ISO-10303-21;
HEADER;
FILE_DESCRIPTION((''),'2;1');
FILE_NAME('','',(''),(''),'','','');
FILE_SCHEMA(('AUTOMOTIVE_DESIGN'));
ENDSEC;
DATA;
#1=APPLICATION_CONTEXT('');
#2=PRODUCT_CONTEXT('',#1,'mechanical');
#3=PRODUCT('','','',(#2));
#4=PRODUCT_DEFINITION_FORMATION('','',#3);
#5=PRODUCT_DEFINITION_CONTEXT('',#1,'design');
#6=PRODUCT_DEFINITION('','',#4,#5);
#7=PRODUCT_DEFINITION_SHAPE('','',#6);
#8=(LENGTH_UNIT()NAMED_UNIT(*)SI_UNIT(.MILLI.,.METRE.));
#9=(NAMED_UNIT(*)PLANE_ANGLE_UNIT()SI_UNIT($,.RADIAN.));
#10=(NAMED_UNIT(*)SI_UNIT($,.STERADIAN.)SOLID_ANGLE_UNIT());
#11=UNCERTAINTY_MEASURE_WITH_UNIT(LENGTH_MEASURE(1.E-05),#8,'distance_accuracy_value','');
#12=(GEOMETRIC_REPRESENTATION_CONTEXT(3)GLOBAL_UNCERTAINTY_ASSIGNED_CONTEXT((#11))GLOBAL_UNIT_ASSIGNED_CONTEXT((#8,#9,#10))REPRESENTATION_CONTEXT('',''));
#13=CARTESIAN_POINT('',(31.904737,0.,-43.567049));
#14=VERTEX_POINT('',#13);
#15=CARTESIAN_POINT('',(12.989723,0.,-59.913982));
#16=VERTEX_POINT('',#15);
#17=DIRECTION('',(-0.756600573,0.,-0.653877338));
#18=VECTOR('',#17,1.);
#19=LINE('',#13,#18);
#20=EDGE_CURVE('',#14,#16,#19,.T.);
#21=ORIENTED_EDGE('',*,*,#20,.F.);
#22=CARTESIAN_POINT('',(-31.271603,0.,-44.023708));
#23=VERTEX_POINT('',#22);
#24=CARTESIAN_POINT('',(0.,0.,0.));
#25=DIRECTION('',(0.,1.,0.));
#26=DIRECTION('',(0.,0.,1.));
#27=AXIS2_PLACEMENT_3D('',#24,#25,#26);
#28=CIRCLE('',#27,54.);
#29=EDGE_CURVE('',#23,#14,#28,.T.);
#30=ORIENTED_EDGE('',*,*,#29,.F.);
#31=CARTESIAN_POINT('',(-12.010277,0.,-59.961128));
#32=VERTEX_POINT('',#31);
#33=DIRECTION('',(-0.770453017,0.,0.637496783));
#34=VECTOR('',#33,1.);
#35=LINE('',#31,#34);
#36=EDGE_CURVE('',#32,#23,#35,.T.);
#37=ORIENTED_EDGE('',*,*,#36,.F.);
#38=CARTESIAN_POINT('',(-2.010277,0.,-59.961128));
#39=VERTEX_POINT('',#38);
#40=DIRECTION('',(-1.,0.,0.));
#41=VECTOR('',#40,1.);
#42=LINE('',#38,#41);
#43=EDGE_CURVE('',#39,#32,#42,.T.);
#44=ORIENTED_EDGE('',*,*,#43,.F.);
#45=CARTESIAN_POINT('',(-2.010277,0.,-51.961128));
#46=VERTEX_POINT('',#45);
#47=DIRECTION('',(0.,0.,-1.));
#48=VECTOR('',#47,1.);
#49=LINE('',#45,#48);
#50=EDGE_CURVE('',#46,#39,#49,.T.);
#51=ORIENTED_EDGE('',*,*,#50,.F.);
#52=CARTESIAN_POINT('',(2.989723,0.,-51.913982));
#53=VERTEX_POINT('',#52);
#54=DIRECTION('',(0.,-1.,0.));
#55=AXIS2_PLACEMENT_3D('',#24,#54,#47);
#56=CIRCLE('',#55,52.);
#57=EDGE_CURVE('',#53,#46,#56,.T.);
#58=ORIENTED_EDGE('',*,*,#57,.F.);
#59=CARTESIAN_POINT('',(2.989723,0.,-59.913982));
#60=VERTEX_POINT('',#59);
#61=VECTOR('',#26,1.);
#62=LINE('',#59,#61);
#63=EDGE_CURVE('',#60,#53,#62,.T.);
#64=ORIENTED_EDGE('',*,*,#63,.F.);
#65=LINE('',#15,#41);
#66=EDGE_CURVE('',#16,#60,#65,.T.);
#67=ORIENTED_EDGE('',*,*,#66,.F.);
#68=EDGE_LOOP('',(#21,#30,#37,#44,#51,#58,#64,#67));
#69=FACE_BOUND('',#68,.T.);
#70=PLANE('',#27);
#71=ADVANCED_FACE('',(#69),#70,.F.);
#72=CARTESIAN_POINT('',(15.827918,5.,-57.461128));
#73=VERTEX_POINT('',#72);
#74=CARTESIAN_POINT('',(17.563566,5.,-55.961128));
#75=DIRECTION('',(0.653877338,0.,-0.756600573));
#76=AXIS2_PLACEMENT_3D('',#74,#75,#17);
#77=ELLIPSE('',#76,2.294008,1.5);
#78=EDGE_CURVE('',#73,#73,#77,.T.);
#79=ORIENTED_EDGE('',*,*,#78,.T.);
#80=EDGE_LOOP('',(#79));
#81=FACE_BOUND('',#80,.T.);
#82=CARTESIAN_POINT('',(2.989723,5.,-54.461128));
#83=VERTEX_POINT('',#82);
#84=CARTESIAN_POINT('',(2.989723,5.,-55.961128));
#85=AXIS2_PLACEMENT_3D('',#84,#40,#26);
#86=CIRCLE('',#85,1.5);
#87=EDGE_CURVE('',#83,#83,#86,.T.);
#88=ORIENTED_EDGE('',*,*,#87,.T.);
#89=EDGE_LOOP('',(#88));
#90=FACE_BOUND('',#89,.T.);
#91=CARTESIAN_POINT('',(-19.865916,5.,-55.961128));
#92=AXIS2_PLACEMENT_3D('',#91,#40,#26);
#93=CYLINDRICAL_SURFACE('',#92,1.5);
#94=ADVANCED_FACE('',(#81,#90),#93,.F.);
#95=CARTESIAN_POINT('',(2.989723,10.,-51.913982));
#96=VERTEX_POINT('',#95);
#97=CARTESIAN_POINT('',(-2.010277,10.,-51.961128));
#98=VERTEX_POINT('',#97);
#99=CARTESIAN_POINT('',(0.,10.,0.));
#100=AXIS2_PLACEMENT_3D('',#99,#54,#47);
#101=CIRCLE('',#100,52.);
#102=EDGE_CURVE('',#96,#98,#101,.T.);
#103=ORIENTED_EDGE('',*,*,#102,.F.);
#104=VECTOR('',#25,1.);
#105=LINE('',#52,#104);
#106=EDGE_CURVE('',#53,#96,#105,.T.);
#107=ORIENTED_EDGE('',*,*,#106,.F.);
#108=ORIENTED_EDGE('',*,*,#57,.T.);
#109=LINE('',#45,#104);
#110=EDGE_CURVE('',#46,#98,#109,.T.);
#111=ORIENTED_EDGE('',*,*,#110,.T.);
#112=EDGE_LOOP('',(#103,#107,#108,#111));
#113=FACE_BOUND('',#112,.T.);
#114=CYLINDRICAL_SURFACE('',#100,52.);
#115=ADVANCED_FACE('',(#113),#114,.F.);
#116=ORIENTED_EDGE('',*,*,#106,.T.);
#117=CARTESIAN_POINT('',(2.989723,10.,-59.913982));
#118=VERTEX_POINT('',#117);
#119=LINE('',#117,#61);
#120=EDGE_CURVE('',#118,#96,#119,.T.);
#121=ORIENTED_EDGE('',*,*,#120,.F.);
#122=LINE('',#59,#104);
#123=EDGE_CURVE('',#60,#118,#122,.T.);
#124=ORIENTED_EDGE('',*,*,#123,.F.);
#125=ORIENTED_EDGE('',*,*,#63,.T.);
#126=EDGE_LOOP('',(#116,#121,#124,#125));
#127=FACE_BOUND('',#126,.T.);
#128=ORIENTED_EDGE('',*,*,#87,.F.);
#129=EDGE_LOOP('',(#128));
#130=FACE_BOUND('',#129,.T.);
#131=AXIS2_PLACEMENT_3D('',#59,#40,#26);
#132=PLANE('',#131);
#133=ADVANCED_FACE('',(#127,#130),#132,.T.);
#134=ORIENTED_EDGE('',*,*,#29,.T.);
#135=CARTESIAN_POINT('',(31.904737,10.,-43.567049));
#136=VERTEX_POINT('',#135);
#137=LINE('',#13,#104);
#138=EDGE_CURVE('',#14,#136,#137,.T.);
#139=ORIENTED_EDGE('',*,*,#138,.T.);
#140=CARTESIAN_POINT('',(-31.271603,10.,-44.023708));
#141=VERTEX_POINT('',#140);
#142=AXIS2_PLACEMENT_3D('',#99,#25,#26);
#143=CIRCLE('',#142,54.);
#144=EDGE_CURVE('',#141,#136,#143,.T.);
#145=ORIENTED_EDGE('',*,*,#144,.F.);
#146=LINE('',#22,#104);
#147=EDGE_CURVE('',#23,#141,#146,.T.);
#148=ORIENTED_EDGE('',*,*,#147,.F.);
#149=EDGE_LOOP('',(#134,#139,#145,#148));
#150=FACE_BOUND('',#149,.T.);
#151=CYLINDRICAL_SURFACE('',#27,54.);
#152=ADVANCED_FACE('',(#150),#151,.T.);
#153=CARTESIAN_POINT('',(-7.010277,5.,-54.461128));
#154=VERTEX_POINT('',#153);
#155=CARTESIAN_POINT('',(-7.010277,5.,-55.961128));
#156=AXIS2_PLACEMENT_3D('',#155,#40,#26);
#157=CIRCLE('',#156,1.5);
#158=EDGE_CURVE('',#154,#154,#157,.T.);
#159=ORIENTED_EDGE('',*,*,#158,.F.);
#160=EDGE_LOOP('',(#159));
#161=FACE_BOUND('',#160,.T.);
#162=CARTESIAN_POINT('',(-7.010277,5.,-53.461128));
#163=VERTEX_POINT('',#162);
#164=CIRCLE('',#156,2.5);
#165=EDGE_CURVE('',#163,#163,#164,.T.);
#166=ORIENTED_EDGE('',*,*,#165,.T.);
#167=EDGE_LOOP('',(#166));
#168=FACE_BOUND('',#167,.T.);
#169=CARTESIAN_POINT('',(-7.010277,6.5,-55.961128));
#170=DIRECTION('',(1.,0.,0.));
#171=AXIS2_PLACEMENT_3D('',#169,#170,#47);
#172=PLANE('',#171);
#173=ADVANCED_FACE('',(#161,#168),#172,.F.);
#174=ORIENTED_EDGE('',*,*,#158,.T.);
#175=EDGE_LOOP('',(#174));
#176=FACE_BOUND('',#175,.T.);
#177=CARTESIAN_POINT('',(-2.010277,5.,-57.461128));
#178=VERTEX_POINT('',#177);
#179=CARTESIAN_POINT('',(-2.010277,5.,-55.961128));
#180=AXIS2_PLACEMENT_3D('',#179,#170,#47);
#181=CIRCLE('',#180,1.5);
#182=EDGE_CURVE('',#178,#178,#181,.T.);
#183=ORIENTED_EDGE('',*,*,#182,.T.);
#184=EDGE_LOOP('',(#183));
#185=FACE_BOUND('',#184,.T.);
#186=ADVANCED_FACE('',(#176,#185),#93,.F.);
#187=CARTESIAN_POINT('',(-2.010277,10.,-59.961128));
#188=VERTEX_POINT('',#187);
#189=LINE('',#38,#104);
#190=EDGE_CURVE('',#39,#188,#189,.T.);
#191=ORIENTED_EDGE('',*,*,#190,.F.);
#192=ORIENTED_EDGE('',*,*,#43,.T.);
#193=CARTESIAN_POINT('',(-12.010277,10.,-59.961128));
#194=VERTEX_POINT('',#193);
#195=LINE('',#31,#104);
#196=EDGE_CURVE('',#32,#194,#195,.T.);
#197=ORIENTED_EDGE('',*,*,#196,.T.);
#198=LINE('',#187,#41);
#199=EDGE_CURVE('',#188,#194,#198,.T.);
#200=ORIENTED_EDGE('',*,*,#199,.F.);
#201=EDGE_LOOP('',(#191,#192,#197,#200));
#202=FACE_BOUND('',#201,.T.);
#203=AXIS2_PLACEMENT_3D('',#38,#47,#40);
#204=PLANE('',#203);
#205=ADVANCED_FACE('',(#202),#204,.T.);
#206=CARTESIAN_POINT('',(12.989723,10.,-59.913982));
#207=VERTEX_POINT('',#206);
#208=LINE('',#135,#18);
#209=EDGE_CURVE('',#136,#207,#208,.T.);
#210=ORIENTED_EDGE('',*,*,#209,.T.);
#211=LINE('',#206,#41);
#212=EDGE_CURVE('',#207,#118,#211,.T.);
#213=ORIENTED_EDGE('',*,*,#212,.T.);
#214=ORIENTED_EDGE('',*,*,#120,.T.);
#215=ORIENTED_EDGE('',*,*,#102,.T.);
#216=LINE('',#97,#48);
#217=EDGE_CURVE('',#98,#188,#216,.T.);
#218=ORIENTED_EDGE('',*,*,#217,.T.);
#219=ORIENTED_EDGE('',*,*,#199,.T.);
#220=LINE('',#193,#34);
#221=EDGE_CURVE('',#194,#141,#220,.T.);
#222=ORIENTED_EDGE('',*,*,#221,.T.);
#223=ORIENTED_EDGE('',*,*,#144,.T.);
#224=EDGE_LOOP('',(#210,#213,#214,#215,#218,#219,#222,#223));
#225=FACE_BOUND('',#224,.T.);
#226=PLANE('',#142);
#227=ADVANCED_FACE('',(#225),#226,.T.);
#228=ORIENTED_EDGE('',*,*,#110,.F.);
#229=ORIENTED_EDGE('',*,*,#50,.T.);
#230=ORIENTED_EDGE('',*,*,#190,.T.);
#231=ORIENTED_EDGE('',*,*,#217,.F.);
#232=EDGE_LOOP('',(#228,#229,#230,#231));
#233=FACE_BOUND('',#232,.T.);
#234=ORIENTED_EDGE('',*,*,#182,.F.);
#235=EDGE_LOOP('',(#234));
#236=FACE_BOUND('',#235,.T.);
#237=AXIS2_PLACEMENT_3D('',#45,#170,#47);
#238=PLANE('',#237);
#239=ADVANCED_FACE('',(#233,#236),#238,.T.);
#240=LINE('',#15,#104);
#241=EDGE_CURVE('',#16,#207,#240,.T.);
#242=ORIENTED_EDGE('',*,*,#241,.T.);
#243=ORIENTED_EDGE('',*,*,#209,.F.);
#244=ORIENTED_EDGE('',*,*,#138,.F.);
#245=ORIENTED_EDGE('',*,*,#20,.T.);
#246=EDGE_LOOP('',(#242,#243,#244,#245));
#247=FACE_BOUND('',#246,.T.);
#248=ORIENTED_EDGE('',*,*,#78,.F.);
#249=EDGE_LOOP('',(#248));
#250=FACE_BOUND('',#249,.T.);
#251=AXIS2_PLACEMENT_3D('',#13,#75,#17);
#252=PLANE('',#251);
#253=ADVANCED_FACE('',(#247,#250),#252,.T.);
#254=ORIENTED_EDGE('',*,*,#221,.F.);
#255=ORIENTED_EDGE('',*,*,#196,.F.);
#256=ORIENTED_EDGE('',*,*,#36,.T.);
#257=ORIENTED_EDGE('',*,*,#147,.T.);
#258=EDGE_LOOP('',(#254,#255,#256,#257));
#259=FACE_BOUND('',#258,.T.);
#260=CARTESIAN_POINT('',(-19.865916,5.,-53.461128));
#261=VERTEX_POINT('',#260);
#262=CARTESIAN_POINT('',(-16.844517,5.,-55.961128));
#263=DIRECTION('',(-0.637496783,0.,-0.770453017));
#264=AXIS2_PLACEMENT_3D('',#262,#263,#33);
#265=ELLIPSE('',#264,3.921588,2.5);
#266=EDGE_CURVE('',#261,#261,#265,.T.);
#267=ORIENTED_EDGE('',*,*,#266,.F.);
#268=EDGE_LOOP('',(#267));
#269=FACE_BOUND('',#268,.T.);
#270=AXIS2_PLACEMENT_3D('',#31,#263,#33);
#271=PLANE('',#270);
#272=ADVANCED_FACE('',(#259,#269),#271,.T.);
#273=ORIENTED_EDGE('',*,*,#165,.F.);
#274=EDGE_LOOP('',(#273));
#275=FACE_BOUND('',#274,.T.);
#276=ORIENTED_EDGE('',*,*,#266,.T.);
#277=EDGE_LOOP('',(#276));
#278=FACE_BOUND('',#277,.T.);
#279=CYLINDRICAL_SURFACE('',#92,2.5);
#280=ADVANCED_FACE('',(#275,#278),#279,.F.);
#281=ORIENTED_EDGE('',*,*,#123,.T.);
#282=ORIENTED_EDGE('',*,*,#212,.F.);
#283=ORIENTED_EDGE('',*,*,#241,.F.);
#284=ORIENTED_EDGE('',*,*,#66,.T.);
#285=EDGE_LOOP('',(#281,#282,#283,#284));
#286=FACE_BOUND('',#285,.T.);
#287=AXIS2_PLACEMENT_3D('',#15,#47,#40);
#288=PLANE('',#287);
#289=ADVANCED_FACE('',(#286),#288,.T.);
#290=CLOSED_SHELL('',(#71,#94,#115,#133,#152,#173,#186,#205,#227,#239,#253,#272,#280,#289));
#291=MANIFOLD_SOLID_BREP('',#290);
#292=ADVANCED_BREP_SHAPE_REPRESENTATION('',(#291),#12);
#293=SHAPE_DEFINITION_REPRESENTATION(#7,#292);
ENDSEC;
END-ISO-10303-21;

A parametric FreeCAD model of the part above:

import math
import FreeCAD as App
import Part
import Sketcher
from FreeCAD import Vector


def add_polygon(sketch, points):
    """Adds a closed chain of lines whose ends are joined by coincident constraints."""
    first, n = sketch.GeometryCount, len(points)
    for a, b in zip(points, points[1:] + points[:1]):
        sketch.addGeometry(Part.LineSegment(App.Vector(*a, 0), App.Vector(*b, 0)), False)
    for i in range(n):
        sketch.addConstraint(Sketcher.Constraint("Coincident", first + i, 2, first + (i + 1) % n, 1))

doc = App.newDocument("Part")
body = doc.addObject("PartDesign::Body", "Body")

# Sketch on XZ plane
sketch1 = doc.addObject("Sketcher::SketchObject", "Sketch")
body.addObject(sketch1)
sketch1.AttachmentSupport = (doc.XZ_Plane, [""])
sketch1.MapMode = "FlatFace"
sketch1.AttachmentOffset = App.Placement(Vector(0, 0, -10), App.Rotation())
sketch1.addGeometry(Part.LineSegment(Vector(2.989723, -59.913982, 0), Vector(2.989723, -51.913982, 0)), False)
sketch1.addGeometry(Part.ArcOfCircle(Part.Circle(Vector(0, 0, 0), Vector(0, 0, 1), 52), math.radians(-92.21556), math.radians(-86.70398)), False)
sketch1.addGeometry(Part.LineSegment(Vector(-2.010277, -51.961128, 0), Vector(-2.010277, -59.961128, 0)), False)
sketch1.addGeometry(Part.LineSegment(Vector(-2.010277, -59.961128, 0), Vector(-12.010277, -59.961128, 0)), False)
sketch1.addGeometry(Part.LineSegment(Vector(-12.010277, -59.961128, 0), Vector(-31.271603, -44.023708, 0)), False)
sketch1.addGeometry(Part.ArcOfCircle(Part.Circle(Vector(0, 0, 0), Vector(0, 0, 1), 54), math.radians(-53.784179), math.radians(234.61247)), False)
sketch1.addGeometry(Part.LineSegment(Vector(31.904737, -43.567049, 0), Vector(12.989723, -59.913982, 0)), False)
sketch1.addGeometry(Part.LineSegment(Vector(12.989723, -59.913982, 0), Vector(2.989723, -59.913982, 0)), False)
sketch1.addConstraint(Sketcher.Constraint("Coincident", 0, 2, 1, 2))
sketch1.addConstraint(Sketcher.Constraint("Coincident", 1, 1, 2, 1))
sketch1.addConstraint(Sketcher.Constraint("Coincident", 2, 2, 3, 1))
sketch1.addConstraint(Sketcher.Constraint("Coincident", 3, 2, 4, 1))
sketch1.addConstraint(Sketcher.Constraint("Coincident", 4, 2, 5, 2))
sketch1.addConstraint(Sketcher.Constraint("Coincident", 5, 1, 6, 1))
sketch1.addConstraint(Sketcher.Constraint("Coincident", 6, 2, 7, 1))
sketch1.addConstraint(Sketcher.Constraint("Coincident", 7, 2, 0, 1))
sketch1.addConstraint(Sketcher.Constraint("Vertical", 0))
sketch1.addConstraint(Sketcher.Constraint("Vertical", 2))
sketch1.addConstraint(Sketcher.Constraint("Horizontal", 3))
sketch1.addConstraint(Sketcher.Constraint("Horizontal", 7))
sketch1.addConstraint(Sketcher.Constraint("Coincident", 1, 3, -1, 1))
sketch1.addConstraint(Sketcher.Constraint("Coincident", 5, 3, -1, 1))
sketch1.addConstraint(Sketcher.Constraint("Equal", 3, 7))
sketch1.addConstraint(Sketcher.Constraint("Equal", 0, 2))
sketch1.addConstraint(Sketcher.Constraint("Equal", 4, 6))
sketch1.addConstraint(Sketcher.Constraint("Radius", 1, 52.0))
sketch1.addConstraint(Sketcher.Constraint("Radius", 5, 54.0))
sketch1.addConstraint(Sketcher.Constraint("DistanceX", 3, 2, 3, 1, 10.0))
sketch1.addConstraint(Sketcher.Constraint("DistanceY", 0, 1, 0, 2, 8.0))
sketch1.addConstraint(Sketcher.Constraint("Distance", 4, 25.0))
sketch1.addConstraint(Sketcher.Constraint("DistanceX", 1, 1, 0, 2, 5.0))
sketch1.addConstraint(Sketcher.Constraint("DistanceY", 4, 2, -1, 1, 44.023708))
pad1 = doc.addObject("PartDesign::Pad", "Pad")
body.addObject(pad1)
pad1.Profile = sketch1
pad1.Length = 10

# Sketch on XY plane
sketch2 = doc.addObject("Sketcher::SketchObject", "Sketch001")
body.addObject(sketch2)
sketch2.AttachmentSupport = (doc.XY_Plane, [""])
sketch2.MapMode = "FlatFace"
add_polygon(sketch2, [(0, 10), (0, 0), (52, 0), (52, 10)])  # lines 0-3
sketch2.addConstraint(Sketcher.Constraint("Vertical", 0))
sketch2.addConstraint(Sketcher.Constraint("Horizontal", 1))
sketch2.addConstraint(Sketcher.Constraint("Vertical", 2))
sketch2.addConstraint(Sketcher.Constraint("Horizontal", 3))
sketch2.addConstraint(Sketcher.Constraint("Coincident", 0, 2, -1, 1))
sketch2.addConstraint(Sketcher.Constraint("DistanceX", 1, 1, 1, 2, 52.0))
sketch2.addConstraint(Sketcher.Constraint("DistanceY", 0, 2, 0, 1, 10.0))
groove = doc.addObject("PartDesign::Groove", "Groove")
body.addObject(groove)
groove.Profile = sketch2
groove.ReferenceAxis = (sketch2, ["V_Axis"])
groove.Angle = 360

# Sketch on XZ plane
sketch3 = doc.addObject("Sketcher::SketchObject", "Sketch002")
body.addObject(sketch3)
sketch3.AttachmentSupport = (doc.XZ_Plane, [""])
sketch3.MapMode = "FlatFace"
sketch3.AttachmentOffset = App.Placement(Vector(0, 0, -5), App.Rotation())
add_polygon(sketch3, [(54, -55.913982), (2.989723, -55.913982), (2.989723, -54.663982), (54, -54.663982)])  # lines 0-3
sketch3.addGeometry(Part.LineSegment(Vector(2.989723, -55.913982, 0), Vector(54, -55.913982, 0)), True)  # axis
sketch3.addConstraint(Sketcher.Constraint("Horizontal", 0))
sketch3.addConstraint(Sketcher.Constraint("Vertical", 1))
sketch3.addConstraint(Sketcher.Constraint("Horizontal", 2))
sketch3.addConstraint(Sketcher.Constraint("Vertical", 3))
sketch3.addConstraint(Sketcher.Constraint("Horizontal", 4))
sketch3.addConstraint(Sketcher.Constraint("Coincident", 4, 1, 0, 2))
sketch3.addConstraint(Sketcher.Constraint("Vertical", 2, 2, 4, 2))
sketch3.addConstraint(Sketcher.Constraint("DistanceX", -1, 1, 2, 2, 54.0))
sketch3.addConstraint(Sketcher.Constraint("DistanceY", 1, 1, 1, 2, 1.25))
sketch3.addConstraint(Sketcher.Constraint("DistanceX", 0, 2, 0, 1, 51.010277))
sketch3.addConstraint(Sketcher.Constraint("DistanceY", 0, 2, -1, 1, 55.913982))
groove2 = doc.addObject("PartDesign::Groove", "Groove001")
body.addObject(groove2)
groove2.Profile = sketch3
groove2.ReferenceAxis = (sketch3, ["Axis0"])
groove2.Angle = 360

# Sketch on YZ plane
sketch4 = doc.addObject("Sketcher::SketchObject", "Sketch003")
body.addObject(sketch4)
sketch4.AttachmentSupport = (doc.YZ_Plane, [""])
sketch4.MapMode = "FlatFace"
sketch4.AttachmentOffset = App.Placement(Vector(0, 0, -19.865916), App.Rotation())
sketch4.addGeometry(Part.Circle(Vector(5, -55.961128, 0), Vector(0, 0, 1), 1.5), False)
sketch4.addConstraint(Sketcher.Constraint("Diameter", 0, 3.0))
sketch4.addConstraint(Sketcher.Constraint("DistanceX", -1, 1, 0, 3, 5.0))
sketch4.addConstraint(Sketcher.Constraint("DistanceY", 0, 3, -1, 1, 55.961128))
doc.recompute()
hole = doc.addObject("PartDesign::Hole", "Hole")
body.addObject(hole)
hole.Profile = sketch4
hole.ThreadType = "None"
hole.Diameter = 3
hole.DepthType = "Dimension"
hole.Depth = 73.865916
hole.DrillPoint = "Flat"
hole.HoleCutType = "Counterbore"
hole.HoleCutDiameter = 5
hole.HoleCutDepth = 12.855639
hole.Reversed = True

doc.recompute()
